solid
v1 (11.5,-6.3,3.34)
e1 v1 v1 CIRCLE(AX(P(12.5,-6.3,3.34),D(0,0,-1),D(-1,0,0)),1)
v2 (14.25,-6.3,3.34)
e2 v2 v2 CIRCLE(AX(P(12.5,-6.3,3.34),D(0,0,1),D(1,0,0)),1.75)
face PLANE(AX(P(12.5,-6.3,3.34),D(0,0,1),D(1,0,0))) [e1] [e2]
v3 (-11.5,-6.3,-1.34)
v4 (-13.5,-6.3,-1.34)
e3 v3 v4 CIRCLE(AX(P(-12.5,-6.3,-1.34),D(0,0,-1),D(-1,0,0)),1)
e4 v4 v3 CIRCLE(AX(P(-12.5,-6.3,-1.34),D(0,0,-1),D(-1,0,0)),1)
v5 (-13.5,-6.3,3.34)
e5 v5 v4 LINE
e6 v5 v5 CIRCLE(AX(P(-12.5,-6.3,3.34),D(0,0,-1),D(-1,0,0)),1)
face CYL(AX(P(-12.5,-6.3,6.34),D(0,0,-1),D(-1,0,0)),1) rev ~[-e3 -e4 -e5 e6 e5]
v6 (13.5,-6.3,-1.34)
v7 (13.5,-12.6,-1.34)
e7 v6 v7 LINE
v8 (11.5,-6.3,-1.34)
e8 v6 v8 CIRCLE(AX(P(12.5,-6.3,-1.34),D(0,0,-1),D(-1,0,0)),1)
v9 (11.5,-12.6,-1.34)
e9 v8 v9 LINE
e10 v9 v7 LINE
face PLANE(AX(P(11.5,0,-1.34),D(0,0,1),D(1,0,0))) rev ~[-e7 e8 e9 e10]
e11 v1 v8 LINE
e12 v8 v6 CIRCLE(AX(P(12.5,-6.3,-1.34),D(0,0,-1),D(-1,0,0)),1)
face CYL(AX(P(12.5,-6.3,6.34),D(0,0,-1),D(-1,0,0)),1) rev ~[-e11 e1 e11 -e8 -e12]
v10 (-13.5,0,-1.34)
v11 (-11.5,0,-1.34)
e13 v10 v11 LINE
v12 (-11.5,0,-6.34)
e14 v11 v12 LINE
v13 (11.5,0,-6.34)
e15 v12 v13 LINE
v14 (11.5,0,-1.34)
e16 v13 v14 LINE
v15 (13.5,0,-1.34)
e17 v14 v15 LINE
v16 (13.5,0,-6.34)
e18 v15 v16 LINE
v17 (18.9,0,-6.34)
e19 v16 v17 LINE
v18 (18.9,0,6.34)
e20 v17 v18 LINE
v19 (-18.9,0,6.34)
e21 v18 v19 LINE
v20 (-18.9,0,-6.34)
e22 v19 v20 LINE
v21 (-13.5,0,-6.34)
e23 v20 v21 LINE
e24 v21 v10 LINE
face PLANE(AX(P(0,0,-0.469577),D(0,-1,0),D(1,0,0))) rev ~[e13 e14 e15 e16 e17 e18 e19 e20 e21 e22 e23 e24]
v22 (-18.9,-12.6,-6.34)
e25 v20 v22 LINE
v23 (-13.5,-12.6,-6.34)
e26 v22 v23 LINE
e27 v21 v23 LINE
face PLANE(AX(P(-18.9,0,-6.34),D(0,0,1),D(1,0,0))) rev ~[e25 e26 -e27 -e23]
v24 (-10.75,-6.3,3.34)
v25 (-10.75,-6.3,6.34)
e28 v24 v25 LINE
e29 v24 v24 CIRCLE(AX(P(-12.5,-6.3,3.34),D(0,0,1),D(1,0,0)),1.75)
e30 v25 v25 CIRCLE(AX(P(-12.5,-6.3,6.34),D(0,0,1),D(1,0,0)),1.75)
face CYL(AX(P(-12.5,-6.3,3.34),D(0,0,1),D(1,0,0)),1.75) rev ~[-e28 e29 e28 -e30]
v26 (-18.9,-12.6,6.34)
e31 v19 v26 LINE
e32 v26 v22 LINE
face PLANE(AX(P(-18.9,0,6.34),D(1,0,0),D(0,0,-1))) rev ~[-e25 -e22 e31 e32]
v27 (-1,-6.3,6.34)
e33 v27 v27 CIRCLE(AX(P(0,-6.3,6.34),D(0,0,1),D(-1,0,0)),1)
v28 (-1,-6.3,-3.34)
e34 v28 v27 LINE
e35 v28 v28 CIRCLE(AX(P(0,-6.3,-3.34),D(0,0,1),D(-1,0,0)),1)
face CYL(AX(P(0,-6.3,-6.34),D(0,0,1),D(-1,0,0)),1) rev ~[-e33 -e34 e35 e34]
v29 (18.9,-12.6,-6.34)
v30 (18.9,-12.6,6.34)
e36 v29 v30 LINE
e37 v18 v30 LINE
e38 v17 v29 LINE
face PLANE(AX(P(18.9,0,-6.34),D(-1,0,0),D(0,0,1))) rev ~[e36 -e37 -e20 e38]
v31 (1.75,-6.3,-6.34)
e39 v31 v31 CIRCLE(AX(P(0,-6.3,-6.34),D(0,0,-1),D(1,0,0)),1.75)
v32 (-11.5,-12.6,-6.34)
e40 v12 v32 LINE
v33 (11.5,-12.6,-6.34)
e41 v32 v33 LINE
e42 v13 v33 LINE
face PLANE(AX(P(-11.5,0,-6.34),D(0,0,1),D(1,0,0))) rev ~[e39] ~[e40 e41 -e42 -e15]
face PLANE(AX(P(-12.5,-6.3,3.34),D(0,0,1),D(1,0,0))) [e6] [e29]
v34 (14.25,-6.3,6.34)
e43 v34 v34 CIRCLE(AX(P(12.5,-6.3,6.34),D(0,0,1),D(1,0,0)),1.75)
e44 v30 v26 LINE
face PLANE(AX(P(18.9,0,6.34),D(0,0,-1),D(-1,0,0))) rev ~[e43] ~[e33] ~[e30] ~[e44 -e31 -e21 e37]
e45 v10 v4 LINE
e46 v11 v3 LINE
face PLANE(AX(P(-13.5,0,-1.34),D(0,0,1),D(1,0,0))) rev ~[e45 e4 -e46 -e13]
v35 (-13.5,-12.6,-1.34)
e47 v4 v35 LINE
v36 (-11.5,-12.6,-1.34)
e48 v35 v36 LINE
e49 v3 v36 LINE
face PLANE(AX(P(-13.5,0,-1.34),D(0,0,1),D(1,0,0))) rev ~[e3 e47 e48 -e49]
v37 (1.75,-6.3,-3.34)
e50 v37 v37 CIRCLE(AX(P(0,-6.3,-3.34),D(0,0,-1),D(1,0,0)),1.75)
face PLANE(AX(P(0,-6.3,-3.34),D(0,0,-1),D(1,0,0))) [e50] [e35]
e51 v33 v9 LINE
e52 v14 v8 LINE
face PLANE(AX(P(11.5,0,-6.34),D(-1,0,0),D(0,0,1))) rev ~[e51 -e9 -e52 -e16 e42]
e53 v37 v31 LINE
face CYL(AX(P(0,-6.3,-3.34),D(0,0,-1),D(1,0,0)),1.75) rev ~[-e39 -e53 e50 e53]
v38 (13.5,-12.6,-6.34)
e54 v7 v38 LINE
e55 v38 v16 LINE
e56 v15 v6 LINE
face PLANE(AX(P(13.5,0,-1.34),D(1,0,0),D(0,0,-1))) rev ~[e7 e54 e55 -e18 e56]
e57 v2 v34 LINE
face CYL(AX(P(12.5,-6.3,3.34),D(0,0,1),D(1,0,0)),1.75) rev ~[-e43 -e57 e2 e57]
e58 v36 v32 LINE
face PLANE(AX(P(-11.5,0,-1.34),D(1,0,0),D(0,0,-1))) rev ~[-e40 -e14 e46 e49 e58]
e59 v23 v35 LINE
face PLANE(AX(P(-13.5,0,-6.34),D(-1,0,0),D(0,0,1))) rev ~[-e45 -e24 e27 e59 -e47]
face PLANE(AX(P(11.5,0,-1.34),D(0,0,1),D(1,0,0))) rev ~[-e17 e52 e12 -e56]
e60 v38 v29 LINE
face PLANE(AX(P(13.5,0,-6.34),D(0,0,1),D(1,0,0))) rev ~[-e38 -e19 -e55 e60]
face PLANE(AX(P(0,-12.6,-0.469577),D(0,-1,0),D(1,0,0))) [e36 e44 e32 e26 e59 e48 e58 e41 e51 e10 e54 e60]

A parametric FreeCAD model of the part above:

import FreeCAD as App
import Part
import Sketcher
from FreeCAD import Vector

doc = App.newDocument("Part")
body = doc.addObject("PartDesign::Body", "Body")

sketch1 = body.newObject("Sketcher::SketchObject", "Sketch")
sketch1.AttachmentSupport = (doc.getObject("XZ_Plane"), [""])
sketch1.MapMode = "FlatFace"
sketch1.addGeometry(Part.LineSegment(Vector(18.9, 6.3, 0), Vector(-18.9, 6.3, 0)), False)
sketch1.addGeometry(Part.LineSegment(Vector(-18.9, 6.3, 0), Vector(-18.9, -6.3, 0)), False)
sketch1.addGeometry(Part.LineSegment(Vector(-18.9, -6.3, 0), Vector(-13.5, -6.3, 0)), False)
sketch1.addGeometry(Part.LineSegment(Vector(-13.5, -6.3, 0), Vector(-13.5, -1.3, 0)), False)
sketch1.addGeometry(Part.LineSegment(Vector(-13.5, -1.3, 0), Vector(-11.5, -1.3, 0)), False)
sketch1.addGeometry(Part.LineSegment(Vector(-11.5, -1.3, 0), Vector(-11.5, -6.3, 0)), False)
sketch1.addGeometry(Part.LineSegment(Vector(-11.5, -6.3, 0), Vector(11.5, -6.3, 0)), False)
sketch1.addGeometry(Part.LineSegment(Vector(11.5, -6.3, 0), Vector(11.5, -1.3, 0)), False)
sketch1.addGeometry(Part.LineSegment(Vector(11.5, -1.3, 0), Vector(13.5, -1.3, 0)), False)
sketch1.addGeometry(Part.LineSegment(Vector(13.5, -1.3, 0), Vector(13.5, -6.3, 0)), False)
sketch1.addGeometry(Part.LineSegment(Vector(13.5, -6.3, 0), Vector(18.9, -6.3, 0)), False)
sketch1.addGeometry(Part.LineSegment(Vector(18.9, -6.3, 0), Vector(18.9, 6.3, 0)), False)
sketch1.addConstraint(Sketcher.Constraint("Coincident", 0, 2, 1, 1))
sketch1.addConstraint(Sketcher.Constraint("Coincident", 1, 2, 2, 1))
sketch1.addConstraint(Sketcher.Constraint("Coincident", 2, 2, 3, 1))
sketch1.addConstraint(Sketcher.Constraint("Coincident", 3, 2, 4, 1))
sketch1.addConstraint(Sketcher.Constraint("Coincident", 4, 2, 5, 1))
sketch1.addConstraint(Sketcher.Constraint("Coincident", 5, 2, 6, 1))
sketch1.addConstraint(Sketcher.Constraint("Coincident", 6, 2, 7, 1))
sketch1.addConstraint(Sketcher.Constraint("Coincident", 7, 2, 8, 1))
sketch1.addConstraint(Sketcher.Constraint("Coincident", 8, 2, 9, 1))
sketch1.addConstraint(Sketcher.Constraint("Coincident", 9, 2, 10, 1))
sketch1.addConstraint(Sketcher.Constraint("Coincident", 10, 2, 11, 1))
sketch1.addConstraint(Sketcher.Constraint("Coincident", 11, 2, 0, 1))
sketch1.addConstraint(Sketcher.Constraint("Horizontal", 0))
sketch1.addConstraint(Sketcher.Constraint("Vertical", 1))
sketch1.addConstraint(Sketcher.Constraint("Horizontal", 2))
sketch1.addConstraint(Sketcher.Constraint("Vertical", 3))
sketch1.addConstraint(Sketcher.Constraint("Horizontal", 4))
sketch1.addConstraint(Sketcher.Constraint("Vertical", 5))
sketch1.addConstraint(Sketcher.Constraint("Horizontal", 6))
sketch1.addConstraint(Sketcher.Constraint("Vertical", 7))
sketch1.addConstraint(Sketcher.Constraint("Horizontal", 8))
sketch1.addConstraint(Sketcher.Constraint("Vertical", 9))
sketch1.addConstraint(Sketcher.Constraint("Horizontal", 10))
sketch1.addConstraint(Sketcher.Constraint("Vertical", 11))
sketch1.addConstraint(Sketcher.Constraint("Symmetric", 0, 2, 10, 2, -1, 1))
sketch1.addConstraint(Sketcher.Constraint("Symmetric", 4, 2, 7, 2, -2))
sketch1.addConstraint(Sketcher.Constraint("Symmetric", 2, 2, 9, 2, -2))
sketch1.addConstraint(Sketcher.Constraint("Horizontal", 2, 2, 5, 2))
sketch1.addConstraint(Sketcher.Constraint("DistanceX", 4, 1, 4, 2, 2.0))
sketch1.addConstraint(Sketcher.Constraint("DistanceX", 6, 1, 6, 2, 23.0))
sketch1.addConstraint(Sketcher.Constraint("DistanceY", 3, 1, 3, 2, 5.0))
sketch1.addConstraint(Sketcher.Constraint("DistanceX", 0, 2, 0, 1, 37.8))
sketch1.addConstraint(Sketcher.Constraint("DistanceY", 1, 2, 1, 1, 12.68))
pad1 = body.newObject("PartDesign::Pad", "Pad")
pad1.Profile = sketch1
pad1.Length = 12.6

sketch2 = body.newObject("Sketcher::SketchObject", "Sketch001")
sketch2.AttachmentSupport = (doc.getObject("XY_Plane"), [""])
sketch2.MapMode = "FlatFace"
sketch2.AttachmentOffset = App.Placement(Vector(0, 0, -6.34), App.Rotation())
sketch2.addGeometry(Part.Circle(Vector(0, -6.3, 0), Vector(0, 0, 1), 1), False)
sketch2.addConstraint(Sketcher.Constraint("PointOnObject", 0, 3, -2))
sketch2.addConstraint(Sketcher.Constraint("Diameter", 0, 2.0))
sketch2.addConstraint(Sketcher.Constraint("DistanceY", 0, 3, -1, 1, 6.3))
doc.recompute()
hole = body.newObject("PartDesign::Hole", "Hole")
hole.Profile = sketch2
hole.ThreadType = "None"
hole.Diameter = 2
hole.DepthType = "Dimension"
hole.Depth = 38
hole.DrillPoint = "Flat"
hole.HoleCutType = "Counterbore"
hole.HoleCutDiameter = 3.5
hole.HoleCutDepth = 3
hole.Reversed = True

sketch3 = body.newObject("Sketcher::SketchObject", "Sketch002")
sketch3.AttachmentSupport = (doc.getObject("XY_Plane"), [""])
sketch3.MapMode = "FlatFace"
sketch3.AttachmentOffset = App.Placement(Vector(0, 0, 6.34), App.Rotation())
sketch3.addGeometry(Part.Circle(Vector(-12.5, -6.3, 0), Vector(0, 0, 1), 1), False)
sketch3.addGeometry(Part.Circle(Vector(12.5, -6.3, 0), Vector(0, 0, 1), 1), False)
sketch3.addConstraint(Sketcher.Constraint("Equal", 0, 1))
sketch3.addConstraint(Sketcher.Constraint("Symmetric", 0, 3, 1, 3, -2))
sketch3.addConstraint(Sketcher.Constraint("Diameter", 0, 2.0))
sketch3.addConstraint(Sketcher.Constraint("DistanceX", 0, 3, 1, 3, 25.0))
sketch3.addConstraint(Sketcher.Constraint("DistanceY", 0, 3, -1, 1, 6.3))
doc.recompute()
hole2 = body.newObject("PartDesign::Hole", "Hole001")
hole2.Profile = sketch3
hole2.ThreadType = "None"
hole2.Diameter = 2
hole2.DepthType = "Dimension"
hole2.Depth = 38
hole2.DrillPoint = "Flat"
hole2.HoleCutType = "Counterbore"
hole2.HoleCutDiameter = 3.5
hole2.HoleCutDepth = 3

doc.recompute()
